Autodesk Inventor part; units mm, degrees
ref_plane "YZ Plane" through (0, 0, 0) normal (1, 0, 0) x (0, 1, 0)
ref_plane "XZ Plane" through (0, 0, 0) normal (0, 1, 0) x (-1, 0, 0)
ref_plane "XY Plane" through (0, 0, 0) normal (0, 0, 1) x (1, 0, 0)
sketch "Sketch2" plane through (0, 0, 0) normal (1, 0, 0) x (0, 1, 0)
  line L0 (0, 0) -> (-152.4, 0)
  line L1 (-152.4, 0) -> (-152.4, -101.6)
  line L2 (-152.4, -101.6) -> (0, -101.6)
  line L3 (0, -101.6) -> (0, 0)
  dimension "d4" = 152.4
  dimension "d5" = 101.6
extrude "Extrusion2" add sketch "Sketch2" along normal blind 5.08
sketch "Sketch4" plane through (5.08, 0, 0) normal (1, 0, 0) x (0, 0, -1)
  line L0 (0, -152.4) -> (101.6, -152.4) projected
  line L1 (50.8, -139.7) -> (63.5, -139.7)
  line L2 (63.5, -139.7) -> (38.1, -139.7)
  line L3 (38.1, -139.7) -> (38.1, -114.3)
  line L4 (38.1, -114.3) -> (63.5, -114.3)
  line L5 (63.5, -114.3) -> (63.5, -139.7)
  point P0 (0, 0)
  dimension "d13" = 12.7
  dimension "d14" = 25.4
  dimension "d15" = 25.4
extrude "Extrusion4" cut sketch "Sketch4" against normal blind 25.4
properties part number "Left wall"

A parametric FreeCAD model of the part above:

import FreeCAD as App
import Part
import Sketcher

V = App.Vector
Q = App.Units.Quantity


def add_polygon(sketch, points):
    """Adds a closed chain of lines whose ends are joined by coincident constraints."""
    first, n = sketch.GeometryCount, len(points)
    for a, b in zip(points, points[1:] + points[:1]):
        sketch.addGeometry(Part.LineSegment(App.Vector(*a, 0), App.Vector(*b, 0)), False)
    for i in range(n):
        sketch.addConstraint(Sketcher.Constraint("Coincident", first + i, 2, first + (i + 1) % n, 1))

doc = App.newDocument("Part")
body = doc.addObject("PartDesign::Body", "Body")

# Sketch on YZ plane
sketch1 = doc.addObject("Sketcher::SketchObject", "Sketch")
body.addObject(sketch1)
sketch1.AttachmentSupport = (doc.YZ_Plane, [""])
sketch1.MapMode = "FlatFace"
add_polygon(sketch1, [(0, -102), (0, 0), (-152, 0), (-152, -102)])  # lines 0-3
sketch1.addConstraint([
    Sketcher.Constraint("Vertical", 0),
    Sketcher.Constraint("Horizontal", 1),
    Sketcher.Constraint("Vertical", 2),
    Sketcher.Constraint("Horizontal", 3),
    Sketcher.Constraint("Coincident", 0, 2, -1, 1),
    Sketcher.Constraint("DistanceX", 1, 2, 1, 1, Q("6 in")),
    Sketcher.Constraint("DistanceY", 0, 1, 0, 2, Q("4 in")),
])
pad1 = doc.addObject("PartDesign::Pad", "Pad")
body.addObject(pad1)
pad1.Profile = sketch1
pad1.Length = Q("0.2 in")

# Sketch on YZ plane
sketch2 = doc.addObject("Sketcher::SketchObject", "Sketch001")
body.addObject(sketch2)
sketch2.AttachmentSupport = (doc.YZ_Plane, [""])
sketch2.MapMode = "FlatFace"
sketch2.AttachmentOffset = App.Placement(V(0, 0, 0.2 * 25.4), App.Rotation())
add_polygon(sketch2, [(-140, -38), (-140, -64), (-114, -64), (-114, -38)])  # lines 0-3
sketch2.addConstraint([
    Sketcher.Constraint("Vertical", 0),
    Sketcher.Constraint("Horizontal", 1),
    Sketcher.Constraint("Vertical", 2),
    Sketcher.Constraint("Horizontal", 3),
    Sketcher.Constraint("Equal", 3, 0),
    Sketcher.Constraint("DistanceX", 1, 1, 1, 2, Q("1 in")),
    Sketcher.Constraint("DistanceX", 0, 2, -1, 1, Q("5.5 in")),
    Sketcher.Constraint("DistanceY", 0, 2, -1, 1, Q("2.5 in")),
])
pocket1 = doc.addObject("PartDesign::Pocket", "Pocket")
body.addObject(pocket1)
pocket1.Profile = sketch2
pocket1.Length = Q("1 in")

doc.recompute()
